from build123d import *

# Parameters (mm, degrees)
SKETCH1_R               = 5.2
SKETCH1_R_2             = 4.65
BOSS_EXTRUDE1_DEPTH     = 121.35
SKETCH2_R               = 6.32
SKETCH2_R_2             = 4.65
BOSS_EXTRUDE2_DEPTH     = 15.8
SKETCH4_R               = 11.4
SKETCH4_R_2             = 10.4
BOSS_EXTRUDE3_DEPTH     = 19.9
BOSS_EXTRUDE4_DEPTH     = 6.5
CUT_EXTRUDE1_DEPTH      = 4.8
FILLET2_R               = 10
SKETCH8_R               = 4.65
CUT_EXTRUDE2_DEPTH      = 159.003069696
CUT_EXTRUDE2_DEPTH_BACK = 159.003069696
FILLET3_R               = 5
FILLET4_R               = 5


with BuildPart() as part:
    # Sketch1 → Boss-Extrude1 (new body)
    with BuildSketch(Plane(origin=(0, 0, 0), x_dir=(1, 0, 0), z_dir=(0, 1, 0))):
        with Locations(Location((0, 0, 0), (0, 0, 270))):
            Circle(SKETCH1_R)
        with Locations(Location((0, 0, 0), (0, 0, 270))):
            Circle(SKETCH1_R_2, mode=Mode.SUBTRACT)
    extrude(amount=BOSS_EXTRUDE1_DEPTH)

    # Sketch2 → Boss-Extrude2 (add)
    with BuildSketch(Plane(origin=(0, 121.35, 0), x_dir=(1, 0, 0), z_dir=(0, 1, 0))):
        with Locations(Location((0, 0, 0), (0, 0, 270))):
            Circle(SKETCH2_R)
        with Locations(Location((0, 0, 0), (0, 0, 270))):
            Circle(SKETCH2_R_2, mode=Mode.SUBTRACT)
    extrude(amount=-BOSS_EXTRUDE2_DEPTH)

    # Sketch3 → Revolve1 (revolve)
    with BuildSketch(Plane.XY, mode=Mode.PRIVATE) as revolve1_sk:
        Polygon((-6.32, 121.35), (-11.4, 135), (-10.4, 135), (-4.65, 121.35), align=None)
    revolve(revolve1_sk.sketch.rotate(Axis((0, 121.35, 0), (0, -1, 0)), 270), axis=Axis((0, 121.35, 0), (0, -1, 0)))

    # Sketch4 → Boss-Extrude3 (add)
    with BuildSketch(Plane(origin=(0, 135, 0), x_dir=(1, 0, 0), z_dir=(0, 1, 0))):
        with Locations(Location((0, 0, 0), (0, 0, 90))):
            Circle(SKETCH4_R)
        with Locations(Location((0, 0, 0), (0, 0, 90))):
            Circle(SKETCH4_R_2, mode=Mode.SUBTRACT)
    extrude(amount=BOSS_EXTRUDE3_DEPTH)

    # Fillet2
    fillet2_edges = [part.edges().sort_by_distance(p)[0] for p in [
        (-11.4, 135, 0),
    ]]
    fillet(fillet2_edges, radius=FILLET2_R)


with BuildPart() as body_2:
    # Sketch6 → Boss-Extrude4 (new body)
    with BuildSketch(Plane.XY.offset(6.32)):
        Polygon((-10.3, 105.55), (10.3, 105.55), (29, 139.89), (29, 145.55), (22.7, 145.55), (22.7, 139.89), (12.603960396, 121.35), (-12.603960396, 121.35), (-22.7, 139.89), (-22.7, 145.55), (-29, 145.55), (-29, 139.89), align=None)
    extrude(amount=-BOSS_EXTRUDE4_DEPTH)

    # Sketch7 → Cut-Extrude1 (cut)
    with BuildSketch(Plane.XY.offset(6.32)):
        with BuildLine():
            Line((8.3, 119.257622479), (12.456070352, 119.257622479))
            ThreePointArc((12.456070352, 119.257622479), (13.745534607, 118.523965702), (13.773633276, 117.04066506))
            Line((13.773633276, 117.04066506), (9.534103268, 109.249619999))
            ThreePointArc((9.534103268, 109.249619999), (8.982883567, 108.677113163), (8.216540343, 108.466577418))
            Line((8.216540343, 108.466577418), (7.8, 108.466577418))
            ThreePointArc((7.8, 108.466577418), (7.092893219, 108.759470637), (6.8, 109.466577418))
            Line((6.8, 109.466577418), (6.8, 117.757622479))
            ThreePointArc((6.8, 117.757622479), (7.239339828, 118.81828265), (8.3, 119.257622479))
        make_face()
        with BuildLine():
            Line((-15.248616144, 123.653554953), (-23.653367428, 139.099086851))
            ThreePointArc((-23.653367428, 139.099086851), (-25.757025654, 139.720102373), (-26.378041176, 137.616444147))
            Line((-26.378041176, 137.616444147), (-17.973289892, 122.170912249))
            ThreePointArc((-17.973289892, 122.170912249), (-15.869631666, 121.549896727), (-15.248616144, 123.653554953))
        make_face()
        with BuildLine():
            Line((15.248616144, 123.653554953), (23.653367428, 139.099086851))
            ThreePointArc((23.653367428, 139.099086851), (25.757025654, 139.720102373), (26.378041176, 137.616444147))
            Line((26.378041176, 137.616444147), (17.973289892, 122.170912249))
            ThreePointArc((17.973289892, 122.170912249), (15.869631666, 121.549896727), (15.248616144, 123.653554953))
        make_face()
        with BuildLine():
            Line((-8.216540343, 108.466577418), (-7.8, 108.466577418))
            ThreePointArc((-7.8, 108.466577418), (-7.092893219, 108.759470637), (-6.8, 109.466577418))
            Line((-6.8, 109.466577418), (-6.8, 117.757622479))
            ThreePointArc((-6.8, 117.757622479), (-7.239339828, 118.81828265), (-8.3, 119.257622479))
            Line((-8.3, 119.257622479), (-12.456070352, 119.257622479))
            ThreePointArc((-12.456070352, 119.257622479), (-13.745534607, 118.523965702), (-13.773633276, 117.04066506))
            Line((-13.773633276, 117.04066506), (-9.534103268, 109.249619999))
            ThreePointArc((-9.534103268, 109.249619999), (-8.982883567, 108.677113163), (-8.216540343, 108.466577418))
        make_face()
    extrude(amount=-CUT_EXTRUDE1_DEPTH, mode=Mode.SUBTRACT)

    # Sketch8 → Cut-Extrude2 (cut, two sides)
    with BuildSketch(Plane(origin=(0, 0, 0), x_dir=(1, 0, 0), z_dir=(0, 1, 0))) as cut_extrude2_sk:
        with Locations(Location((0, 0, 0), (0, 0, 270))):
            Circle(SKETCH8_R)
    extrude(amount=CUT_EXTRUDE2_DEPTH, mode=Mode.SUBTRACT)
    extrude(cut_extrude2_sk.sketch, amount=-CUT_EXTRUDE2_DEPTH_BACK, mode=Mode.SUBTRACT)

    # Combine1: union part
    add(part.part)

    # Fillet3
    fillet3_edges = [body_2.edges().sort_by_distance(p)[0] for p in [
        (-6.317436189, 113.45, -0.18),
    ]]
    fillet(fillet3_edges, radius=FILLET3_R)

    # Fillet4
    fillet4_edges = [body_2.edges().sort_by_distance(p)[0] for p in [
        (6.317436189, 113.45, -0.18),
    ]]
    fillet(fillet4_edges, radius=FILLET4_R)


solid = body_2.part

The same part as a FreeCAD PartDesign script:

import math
import FreeCAD as App
import Part
import Sketcher

V = App.Vector
Q = App.Units.Quantity


def edges_at(feature, points):
    """Names of the edges that pass closest to the given points."""
    edges = feature.Shape.Edges
    near = lambda p: min(range(len(edges)), key=lambda i: edges[i].distToShape(Part.Vertex(*p))[0])
    return sorted({f"Edge{near(p) + 1}" for p in points})


def add_polygon(sketch, points):
    """Adds a closed chain of lines whose ends are joined by coincident constraints."""
    first, n = sketch.GeometryCount, len(points)
    for a, b in zip(points, points[1:] + points[:1]):
        sketch.addGeometry(Part.LineSegment(App.Vector(*a, 0), App.Vector(*b, 0)), False)
    for i in range(n):
        sketch.addConstraint(Sketcher.Constraint("Coincident", first + i, 2, first + (i + 1) % n, 1))

doc = App.newDocument("Part")
params = doc.addObject("Spreadsheet::Sheet", "Params")
for row, (alias, value) in enumerate([
    ("sketch1_diameter", "10.4 mm"),
    ("sketch1_diameter2", "9.3 mm"),
    ("pad1_length", "121.35 mm"),
    ("sketch2_diameter", "9.3 mm"),
    ("sketch2_diameter2", "12.64 mm"),
    ("pad2_length", "15.8 mm"),
    ("sketch3_width", "1 mm"),
    ("sketch3_width2", "1.67 mm"),
    ("revolution_angle", "360 deg"),
    ("sketch4_diameter", "22.8 mm"),
    ("sketch4_diameter2", "20.8 mm"),
    ("pad3_length", "19.9 mm"),
    ("fillet_radius", "10 mm"),
    ("sketch5_width", "20.6 mm"),
    ("sketch5_width2", "6.3 mm"),
    ("sketch5_height", "5.66 mm"),
    ("pad4_length", "6.5 mm"),
    ("sketch6_radius", "1 mm"),
    ("sketch6_radius2", "1.5 mm"),
    ("pocket1_length", "4.8 mm"),
    ("sketch7_diameter", "9.3 mm"),
    ("fillet2_radius", "5 mm"),
    ("fillet3_radius", "5 mm"),
], start=1):
    params.set(f"A{row}", alias)
    params.set(f"B{row}", "=" + value)
    params.setAlias(f"B{row}", alias)

body = doc.addObject("PartDesign::Body", "Body")

# Sketch on XZ plane
sketch1 = body.newObject("Sketcher::SketchObject", "Sketch")
sketch1.AttachmentSupport = (doc.getObject("XZ_Plane"), [""])
sketch1.MapMode = "FlatFace"
sketch1.addGeometry([
    Part.Circle(V(0, 0, 0), V(0, 0, 1), 5.2),
    Part.Circle(V(0, 0, 0), V(0, 0, 1), 4.7),
], False)
sketch1.addConstraint([
    Sketcher.Constraint("Coincident", 0, 3, -1, 1),
    Sketcher.Constraint("Coincident", 1, 3, -1, 1),
    Sketcher.Constraint("Diameter", 0, Q("10.4 mm")),
    Sketcher.Constraint("Diameter", 1, Q("9.3 mm")),
])
sketch1.setExpression("Constraints[2]", "Params.sketch1_diameter")
sketch1.setExpression("Constraints[3]", "Params.sketch1_diameter2")
pad1 = body.newObject("PartDesign::Pad", "Pad")
pad1.Profile = sketch1
pad1.setExpression("Length", "Params.pad1_length")
pad1.Reversed = True

# Sketch on XZ plane
sketch2 = body.newObject("Sketcher::SketchObject", "Sketch001")
sketch2.AttachmentSupport = (doc.getObject("XZ_Plane"), [""])
sketch2.MapMode = "FlatFace"
sketch2.AttachmentOffset = App.Placement(V(0, 0, -121.35), App.Rotation())
sketch2.addGeometry([
    Part.Circle(V(0, 0, 0), V(0, 0, 1), 6.3),
    Part.Circle(V(0, 0, 0), V(0, 0, 1), 4.7),
], False)
sketch2.addConstraint([
    Sketcher.Constraint("Coincident", 0, 3, -1, 1),
    Sketcher.Constraint("Coincident", 1, 3, -1, 1),
    Sketcher.Constraint("Diameter", 1, Q("9.3 mm")),
    Sketcher.Constraint("Diameter", 0, Q("12.64 mm")),
])
sketch2.setExpression("Constraints[2]", "Params.sketch2_diameter")
sketch2.setExpression("Constraints[3]", "Params.sketch2_diameter2")
pad2 = body.newObject("PartDesign::Pad", "Pad001")
pad2.Profile = sketch2
pad2.setExpression("Length", "Params.pad2_length")

# Sketch on XY plane
sketch3 = body.newObject("Sketcher::SketchObject", "Sketch002")
sketch3.AttachmentSupport = (doc.getObject("XY_Plane"), [""])
sketch3.MapMode = "FlatFace"
add_polygon(sketch3, [(-11.4, 135), (-6.3, 121.3), (-4.7, 121.3), (-10.4, 135)])  # lines 0-3
sketch3.addConstraint([
    Sketcher.Constraint("Horizontal", 1),
    Sketcher.Constraint("Horizontal", 3),
    Sketcher.Constraint("DistanceX", 3, 2, 3, 1, Q("1 mm")),
    Sketcher.Constraint("DistanceY", -1, 1, 2, 2, Q("135 mm")),
    Sketcher.Constraint("DistanceX", 1, 1, 1, 2, Q("1.67 mm")),
    Sketcher.Constraint("DistanceX", 2, 2, -1, 1, Q("10.4 mm")),
    Sketcher.Constraint("DistanceX", 0, 2, -1, 1, Q("6.32 mm")),
    Sketcher.Constraint("DistanceY", -1, 1, 0, 2, Q("121.35 mm")),
])
sketch3.setExpression("Constraints[6]", "Params.sketch3_width")
sketch3.setExpression("Constraints[8]", "Params.sketch3_width2")
revolution = body.newObject("PartDesign::Revolution", "Revolution")
revolution.Profile = sketch3
revolution.ReferenceAxis = (sketch3, ["V_Axis"])
revolution.setExpression("Angle", "Params.revolution_angle")

# Sketch on XZ plane
sketch4 = body.newObject("Sketcher::SketchObject", "Sketch003")
sketch4.AttachmentSupport = (doc.getObject("XZ_Plane"), [""])
sketch4.MapMode = "FlatFace"
sketch4.AttachmentOffset = App.Placement(V(0, 0, -135), App.Rotation())
sketch4.addGeometry([
    Part.Circle(V(0, 0, 0), V(0, 0, 1), 11),
    Part.Circle(V(0, 0, 0), V(0, 0, 1), 10),
], False)
sketch4.addConstraint([
    Sketcher.Constraint("Coincident", 0, 3, -1, 1),
    Sketcher.Constraint("Coincident", 1, 3, -1, 1),
    Sketcher.Constraint("Diameter", 0, Q("22.8 mm")),
    Sketcher.Constraint("Diameter", 1, Q("20.8 mm")),
])
sketch4.setExpression("Constraints[2]", "Params.sketch4_diameter")
sketch4.setExpression("Constraints[3]", "Params.sketch4_diameter2")
pad3 = body.newObject("PartDesign::Pad", "Pad002")
pad3.Profile = sketch4
pad3.setExpression("Length", "Params.pad3_length")
pad3.Reversed = True
doc.recompute()

fillet = body.newObject("PartDesign::Fillet", "Fillet")
fillet.Base = (pad3, edges_at(pad3, [(-11.4, 135, 0)]))
fillet.setExpression("Radius", "Params.fillet_radius")
body2 = doc.addObject("PartDesign::Body", "Body001")

# Sketch on XY plane
sketch5 = body2.newObject("Sketcher::SketchObject", "Sketch004")
sketch5.AttachmentSupport = (doc.getObject("XY_Plane001"), [""])
sketch5.MapMode = "FlatFace"
sketch5.AttachmentOffset = App.Placement(V(0, 0, 6.32), App.Rotation())
add_polygon(sketch5, [(-10, 106), (10, 106), (29, 140), (29, 146), (23, 146), (23, 140), (13, 121), (-13, 121), (-23, 140), (-23, 146), (-29, 146), (-29, 140)])  # lines 0-11
sketch5.addConstraint([
    Sketcher.Constraint("Horizontal", 0),
    Sketcher.Constraint("Vertical", 2),
    Sketcher.Constraint("Horizontal", 3),
    Sketcher.Constraint("Vertical", 4),
    Sketcher.Constraint("Horizontal", 6),
    Sketcher.Constraint("Vertical", 8),
    Sketcher.Constraint("Horizontal", 9),
    Sketcher.Constraint("Vertical", 10),
    Sketcher.Constraint("Symmetric", 4, 2, 7, 2, -2),
    Sketcher.Constraint("Symmetric", 2, 2, 9, 2, -2),
    Sketcher.Constraint("Parallel", 1, 5),
    Sketcher.Constraint("Parallel", 7, 11),
    Sketcher.Constraint("Horizontal", 1, 2, 4, 2),
    Sketcher.Constraint("Horizontal", 7, 2, 10, 2),
    Sketcher.Constraint("Equal", 5, 7),
    Sketcher.Constraint("DistanceX", 0, 1, 0, 2, Q("20.6 mm")),
    Sketcher.Constraint("DistanceX", 3, 2, 3, 1, Q("6.3 mm")),
    Sketcher.Constraint("DistanceX", -1, 1, 1, 2, Q("29 mm")),
    Sketcher.Constraint("DistanceY", 0, 2, 2, 2, Q("40 mm")),
    Sketcher.Constraint("DistanceY", 2, 1, 2, 2, Q("5.66 mm")),
    Sketcher.Constraint("DistanceY", 0, 2, 5, 2, Q("15.8 mm")),
    Sketcher.Constraint("DistanceY", -1, 1, 0, 2, Q("105.55 mm")),
])
sketch5.setExpression("Constraints[27]", "Params.sketch5_width")
sketch5.setExpression("Constraints[28]", "Params.sketch5_width2")
sketch5.setExpression("Constraints[31]", "Params.sketch5_height")
pad4 = body2.newObject("PartDesign::Pad", "Pad003")
pad4.Profile = sketch5
pad4.setExpression("Length", "Params.pad4_length")
pad4.Reversed = True

# Sketch on XY plane
sketch6 = body2.newObject("Sketcher::SketchObject", "Sketch005")
sketch6.AttachmentSupport = (doc.getObject("XY_Plane001"), [""])
sketch6.MapMode = "FlatFace"
sketch6.AttachmentOffset = App.Placement(V(0, 0, 6.32), App.Rotation())
sketch6.addGeometry([
    Part.LineSegment(V(12.46, 119.26, 0), V(8.3, 119.26, 0)),  # 0
    Part.ArcOfCircle(Part.Circle(V(8.3, 117.76, 0), V(0, 0, 1), 1.5), math.radians(90), math.radians(180)),  # 1
    Part.LineSegment(V(6.8, 117.76, 0), V(6.8, 109.47, 0)),  # 2
    Part.ArcOfCircle(Part.Circle(V(7.8, 109.47, 0), V(0, 0, 1), 1), math.radians(-180), math.radians(-90)),  # 3
    Part.LineSegment(V(7.8, 108.47, 0), V(8.22, 108.47, 0)),  # 4
    Part.ArcOfCircle(Part.Circle(V(8.22, 109.97, 0), V(0, 0, 1), 1.5), math.radians(-90), math.radians(-29)),  # 5
    Part.LineSegment(V(9.53, 109.25, 0), V(13.77, 117.04, 0)),  # 6
    Part.ArcOfCircle(Part.Circle(V(12.46, 117.76, 0), V(0, 0, 1), 1.5), math.radians(-29), math.radians(90)),  # 7
    Part.LineSegment(V(-15.25, 123.65, 0), V(-23.65, 139.1, 0)),  # 8
    Part.ArcOfCircle(Part.Circle(V(-25.02, 138.36, 0), V(0, 0, 1), 1.55), math.radians(29), math.radians(209)),  # 9
    Part.LineSegment(V(-26.38, 137.62, 0), V(-17.97, 122.17, 0)),  # 10
    Part.ArcOfCircle(Part.Circle(V(-16.61, 122.91, 0), V(0, 0, 1), 1.55), math.radians(-151), math.radians(29)),  # 11
    Part.LineSegment(V(23.65, 139.1, 0), V(15.25, 123.65, 0)),  # 12
    Part.ArcOfCircle(Part.Circle(V(16.61, 122.91, 0), V(0, 0, 1), 1.55), math.radians(151), math.radians(331)),  # 13
    Part.LineSegment(V(17.97, 122.17, 0), V(26.38, 137.62, 0)),  # 14
    Part.ArcOfCircle(Part.Circle(V(25.02, 138.36, 0), V(0, 0, 1), 1.55), math.radians(-29), math.radians(151)),  # 15
    Part.LineSegment(V(-8.22, 108.47, 0), V(-7.8, 108.47, 0)),  # 16
    Part.ArcOfCircle(Part.Circle(V(-7.8, 109.47, 0), V(0, 0, 1), 1), math.radians(-90), math.radians(0)),  # 17
    Part.LineSegment(V(-6.8, 109.47, 0), V(-6.8, 117.76, 0)),  # 18
    Part.ArcOfCircle(Part.Circle(V(-8.3, 117.76, 0), V(0, 0, 1), 1.5), math.radians(0), math.radians(90)),  # 19
    Part.LineSegment(V(-8.3, 119.26, 0), V(-12.46, 119.26, 0)),  # 20
    Part.ArcOfCircle(Part.Circle(V(-12.46, 117.76, 0), V(0, 0, 1), 1.5), math.radians(90), math.radians(209)),  # 21
    Part.LineSegment(V(-13.77, 117.04, 0), V(-9.53, 109.25, 0)),  # 22
    Part.ArcOfCircle(Part.Circle(V(-8.22, 109.97, 0), V(0, 0, 1), 1.5), math.radians(-151), math.radians(-90)),  # 23
], False)
sketch6.addConstraint([
    Sketcher.Constraint("Tangent", 0, 2, 1, 1),
    Sketcher.Constraint("Tangent", 1, 2, 2, 1),
    Sketcher.Constraint("Tangent", 2, 2, 3, 1),
    Sketcher.Constraint("Tangent", 3, 2, 4, 1),
    Sketcher.Constraint("Tangent", 4, 2, 5, 1),
    Sketcher.Constraint("Tangent", 5, 2, 6, 1),
    Sketcher.Constraint("Tangent", 6, 2, 7, 1),
    Sketcher.Constraint("Tangent", 7, 2, 0, 1),
    Sketcher.Constraint("Tangent", 8, 2, 9, 1),
    Sketcher.Constraint("Tangent", 9, 2, 10, 1),
    Sketcher.Constraint("Tangent", 10, 2, 11, 1),
    Sketcher.Constraint("Tangent", 11, 2, 8, 1),
    Sketcher.Constraint("Tangent", 12, 2, 13, 1),
    Sketcher.Constraint("Tangent", 13, 2, 14, 1),
    Sketcher.Constraint("Tangent", 14, 2, 15, 1),
    Sketcher.Constraint("Tangent", 15, 2, 12, 1),
    Sketcher.Constraint("Tangent", 16, 2, 17, 1),
    Sketcher.Constraint("Tangent", 17, 2, 18, 1),
    Sketcher.Constraint("Tangent", 18, 2, 19, 1),
    Sketcher.Constraint("Tangent", 19, 2, 20, 1),
    Sketcher.Constraint("Tangent", 20, 2, 21, 1),
    Sketcher.Constraint("Tangent", 21, 2, 22, 1),
    Sketcher.Constraint("Tangent", 22, 2, 23, 1),
    Sketcher.Constraint("Tangent", 23, 2, 16, 1),
    Sketcher.Constraint("Horizontal", 0),
    Sketcher.Constraint("Vertical", 2),
    Sketcher.Constraint("Horizontal", 4),
    Sketcher.Constraint("Horizontal", 16),
    Sketcher.Constraint("Vertical", 18),
    Sketcher.Constraint("Horizontal", 20),
    Sketcher.Constraint("Equal", 1, 5),
    Sketcher.Constraint("Equal", 5, 7),
    Sketcher.Constraint("Equal", 9, 11),
    Sketcher.Constraint("Equal", 11, 13),
    Sketcher.Constraint("Equal", 13, 15),
    Sketcher.Constraint("Equal", 3, 17),
    Sketcher.Constraint("Equal", 7, 19),
    Sketcher.Constraint("Equal", 19, 21),
    Sketcher.Constraint("Equal", 21, 23),
    Sketcher.Constraint("Symmetric", 11, 3, 13, 3, -2),
    Sketcher.Constraint("Symmetric", 9, 3, 15, 3, -2),
    Sketcher.Constraint("Symmetric", 3, 3, 17, 3, -2),
    Sketcher.Constraint("Symmetric", 7, 3, 21, 3, -2),
    Sketcher.Constraint("Parallel", 6, 12),
    Sketcher.Constraint("Parallel", 10, 22),
    Sketcher.Constraint("Radius", 3, Q("1 mm")),
    Sketcher.Constraint("Radius", 1, Q("1.5 mm")),
    Sketcher.Constraint("DistanceX", -1, 1, 1, 3, Q("8.3 mm")),
    Sketcher.Constraint("Radius", 9, Q("1.550974 mm")),
    Sketcher.Constraint("DistanceX", 0, 2, 0, 1, Q("4.15607 mm")),
    Sketcher.Constraint("DistanceX", 4, 1, 4, 2, Q("0.41654 mm")),
    Sketcher.Constraint("DistanceY", 2, 2, 2, 1, Q("8.291045 mm")),
    Sketcher.Constraint("DistanceY", -1, 1, 5, 2, Q("109.24962 mm")),
    Sketcher.Constraint("DistanceX", 9, 2, -1, 1, Q("26.378041 mm")),
    Sketcher.Constraint("DistanceX", 10, 2, -1, 1, Q("17.97329 mm")),
    Sketcher.Constraint("DistanceY", 5, 3, 9, 3, Q("28.391188 mm")),
])
sketch6.setExpression("Constraints[45]", "Params.sketch6_radius")
sketch6.setExpression("Constraints[46]", "Params.sketch6_radius2")
pocket1 = body2.newObject("PartDesign::Pocket", "Pocket")
pocket1.Profile = sketch6
pocket1.setExpression("Length", "Params.pocket1_length")

# Sketch on XZ plane
sketch7 = body2.newObject("Sketcher::SketchObject", "Sketch006")
sketch7.AttachmentSupport = (doc.getObject("XZ_Plane001"), [""])
sketch7.MapMode = "FlatFace"
sketch7.addGeometry(Part.Circle(V(0, 0, 0), V(0, 0, 1), 4.7), False)
sketch7.addConstraint([
    Sketcher.Constraint("Coincident", 0, 3, -1, 1),
    Sketcher.Constraint("Diameter", 0, Q("9.3 mm")),
])
sketch7.setExpression("Constraints[1]", "Params.sketch7_diameter")
pocket2 = body2.newObject("PartDesign::Pocket", "Pocket001")
pocket2.Profile = sketch7
pocket2.Type = "ThroughAll"
pocket2.Midplane = True
doc.recompute()

boolean = body2.newObject("PartDesign::Boolean", "Boolean")
boolean.Type = "Fuse"
boolean.addObjects([body])
doc.recompute()

fillet2 = body2.newObject("PartDesign::Fillet", "Fillet001")
fillet2.Base = (boolean, edges_at(boolean, [(-6.317, 113.45, -0.18)]))
fillet2.setExpression("Radius", "Params.fillet2_radius")
doc.recompute()

fillet3 = body2.newObject("PartDesign::Fillet", "Fillet002")
fillet3.Base = (fillet2, edges_at(fillet2, [(6.317, 113.45, -0.18)]))
fillet3.setExpression("Radius", "Params.fillet3_radius")

doc.recompute()
